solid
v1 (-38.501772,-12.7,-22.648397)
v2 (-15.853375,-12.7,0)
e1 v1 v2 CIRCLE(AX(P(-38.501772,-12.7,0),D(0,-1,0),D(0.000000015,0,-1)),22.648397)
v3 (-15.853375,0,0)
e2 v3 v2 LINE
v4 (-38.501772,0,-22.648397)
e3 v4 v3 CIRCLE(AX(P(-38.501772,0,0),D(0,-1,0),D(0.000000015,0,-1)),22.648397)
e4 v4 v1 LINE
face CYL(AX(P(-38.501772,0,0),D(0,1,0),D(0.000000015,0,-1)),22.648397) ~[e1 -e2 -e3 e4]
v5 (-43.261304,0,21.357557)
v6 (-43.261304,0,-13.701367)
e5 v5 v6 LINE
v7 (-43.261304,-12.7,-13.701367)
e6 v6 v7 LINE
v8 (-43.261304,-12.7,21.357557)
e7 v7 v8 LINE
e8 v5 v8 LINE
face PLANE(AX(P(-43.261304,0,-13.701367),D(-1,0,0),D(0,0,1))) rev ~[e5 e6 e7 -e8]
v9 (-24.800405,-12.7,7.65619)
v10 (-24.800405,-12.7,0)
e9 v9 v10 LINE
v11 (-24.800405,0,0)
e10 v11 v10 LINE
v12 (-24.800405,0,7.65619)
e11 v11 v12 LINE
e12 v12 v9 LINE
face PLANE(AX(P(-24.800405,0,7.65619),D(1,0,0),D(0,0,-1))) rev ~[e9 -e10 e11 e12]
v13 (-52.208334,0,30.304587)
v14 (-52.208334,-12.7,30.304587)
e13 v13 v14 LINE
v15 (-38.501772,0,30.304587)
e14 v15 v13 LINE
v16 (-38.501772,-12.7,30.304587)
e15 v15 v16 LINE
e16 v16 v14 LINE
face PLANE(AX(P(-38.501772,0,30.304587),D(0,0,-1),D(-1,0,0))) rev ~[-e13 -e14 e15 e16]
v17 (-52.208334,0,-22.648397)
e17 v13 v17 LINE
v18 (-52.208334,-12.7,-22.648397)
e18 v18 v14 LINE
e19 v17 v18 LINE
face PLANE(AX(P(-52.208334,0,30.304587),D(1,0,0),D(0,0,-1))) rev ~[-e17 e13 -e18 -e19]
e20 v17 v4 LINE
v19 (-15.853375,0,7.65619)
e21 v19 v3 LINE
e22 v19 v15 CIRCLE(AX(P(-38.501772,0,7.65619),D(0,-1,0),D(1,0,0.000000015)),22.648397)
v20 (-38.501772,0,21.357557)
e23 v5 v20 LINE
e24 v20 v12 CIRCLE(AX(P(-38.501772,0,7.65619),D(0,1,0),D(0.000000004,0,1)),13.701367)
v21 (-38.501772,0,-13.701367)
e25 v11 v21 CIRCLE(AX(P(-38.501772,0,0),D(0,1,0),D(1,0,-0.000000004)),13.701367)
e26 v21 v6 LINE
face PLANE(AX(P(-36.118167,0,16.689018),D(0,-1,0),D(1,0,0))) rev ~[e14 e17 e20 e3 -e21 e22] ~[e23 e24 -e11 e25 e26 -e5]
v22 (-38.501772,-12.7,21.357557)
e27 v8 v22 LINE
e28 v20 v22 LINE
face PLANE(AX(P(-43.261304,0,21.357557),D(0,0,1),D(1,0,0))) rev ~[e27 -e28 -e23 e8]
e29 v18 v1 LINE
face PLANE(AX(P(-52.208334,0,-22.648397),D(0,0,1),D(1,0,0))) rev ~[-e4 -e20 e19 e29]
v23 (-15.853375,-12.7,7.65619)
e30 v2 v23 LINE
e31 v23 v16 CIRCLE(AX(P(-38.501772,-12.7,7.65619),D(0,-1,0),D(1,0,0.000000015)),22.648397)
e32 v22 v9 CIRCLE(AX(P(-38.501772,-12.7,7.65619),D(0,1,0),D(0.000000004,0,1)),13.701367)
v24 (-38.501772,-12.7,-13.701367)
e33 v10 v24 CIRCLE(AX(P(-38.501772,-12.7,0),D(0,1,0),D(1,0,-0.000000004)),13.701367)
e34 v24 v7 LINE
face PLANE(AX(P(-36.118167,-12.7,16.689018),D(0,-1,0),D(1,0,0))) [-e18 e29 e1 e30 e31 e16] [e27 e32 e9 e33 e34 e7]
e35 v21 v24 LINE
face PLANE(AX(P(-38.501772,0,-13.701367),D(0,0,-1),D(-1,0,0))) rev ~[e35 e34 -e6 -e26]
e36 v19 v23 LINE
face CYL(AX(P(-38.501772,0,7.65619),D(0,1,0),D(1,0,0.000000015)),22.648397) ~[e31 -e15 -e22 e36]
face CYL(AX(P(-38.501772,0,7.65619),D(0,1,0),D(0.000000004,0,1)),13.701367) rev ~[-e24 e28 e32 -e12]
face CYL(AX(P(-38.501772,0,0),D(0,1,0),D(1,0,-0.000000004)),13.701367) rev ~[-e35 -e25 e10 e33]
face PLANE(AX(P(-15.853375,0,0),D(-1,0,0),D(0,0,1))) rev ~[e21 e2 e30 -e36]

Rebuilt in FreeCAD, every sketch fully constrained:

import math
import FreeCAD as App
import Part
import Sketcher
Q = App.Units.Quantity

doc = App.newDocument("Part")
body = doc.addObject("PartDesign::Body", "Body")

# Sketch on XZ plane
sketch1 = doc.addObject("Sketcher::SketchObject", "Sketch")
body.addObject(sketch1)
sketch1.AttachmentSupport = (doc.XZ_Plane, [""])
sketch1.MapMode = "FlatFace"
sketch1.addGeometry([
    Part.LineSegment(App.Vector(-43.3, 3.8, 0), App.Vector(-52.2, 3.8, 0)),  # 0
    Part.LineSegment(App.Vector(-52.2, 3.8, 0), App.Vector(-52.2, -22.6, 0)),  # 1
    Part.LineSegment(App.Vector(-52.2, -22.6, 0), App.Vector(-38.5, -22.6, 0)),  # 2
    Part.ArcOfCircle(Part.Circle(App.Vector(-38.5, 0, 0), App.Vector(0, 0, 1), 22.6), math.radians(-90), math.radians(0)),  # 3
    Part.LineSegment(App.Vector(-15.9, 0, 0), App.Vector(-15.9, 3.8, 0)),  # 4
    Part.LineSegment(App.Vector(-15.9, 3.8, 0), App.Vector(-24.8, 3.8, 0)),  # 5
    Part.LineSegment(App.Vector(-24.8, 3.8, 0), App.Vector(-24.8, 0, 0)),  # 6
    Part.ArcOfCircle(Part.Circle(App.Vector(-38.5, 0, 0), App.Vector(0, 0, 1), 13.7), math.radians(-90), math.radians(0)),  # 7
    Part.LineSegment(App.Vector(-38.5, -13.7, 0), App.Vector(-43.3, -13.7, 0)),  # 8
    Part.LineSegment(App.Vector(-43.3, -13.7, 0), App.Vector(-43.3, 3.8, 0)),  # 9
], False)
sketch1.addConstraint([
    Sketcher.Constraint("Coincident", 0, 2, 1, 1),
    Sketcher.Constraint("Coincident", 1, 2, 2, 1),
    Sketcher.Constraint("Tangent", 2, 2, 3, 1),
    Sketcher.Constraint("Tangent", 3, 2, 4, 1),
    Sketcher.Constraint("Coincident", 4, 2, 5, 1),
    Sketcher.Constraint("Coincident", 5, 2, 6, 1),
    Sketcher.Constraint("Tangent", 6, 2, 7, 2),
    Sketcher.Constraint("Tangent", 7, 1, 8, 1),
    Sketcher.Constraint("Coincident", 8, 2, 9, 1),
    Sketcher.Constraint("Coincident", 9, 2, 0, 1),
    Sketcher.Constraint("Horizontal", 0),
    Sketcher.Constraint("Vertical", 1),
    Sketcher.Constraint("Horizontal", 2),
    Sketcher.Constraint("Vertical", 4),
    Sketcher.Constraint("Horizontal", 5),
    Sketcher.Constraint("Vertical", 6),
    Sketcher.Constraint("Horizontal", 8),
    Sketcher.Constraint("Vertical", 9),
    Sketcher.Constraint("Coincident", 7, 3, 3, 3),
    Sketcher.Constraint("PointOnObject", 3, 3, -1),
    Sketcher.Constraint("Horizontal", 0, 2, 4, 2),
    Sketcher.Constraint("Equal", 0, 5),
    Sketcher.Constraint("Radius", 3, Q("22.648397 mm")),
    Sketcher.Constraint("Radius", 7, Q("13.701367 mm")),
    Sketcher.Constraint("DistanceX", 2, 1, 2, 2, Q("13.706562 mm")),
    Sketcher.Constraint("DistanceY", 9, 1, 9, 2, Q("17.529462 mm")),
    Sketcher.Constraint("DistanceX", 3, 3, -1, 1, Q("38.501772 mm")),
])
pad1 = doc.addObject("PartDesign::Pad", "Pad")
body.addObject(pad1)
pad1.Profile = sketch1
pad1.Length = Q("0.5 in")

# Sketch on XZ plane
sketch2 = doc.addObject("Sketcher::SketchObject", "Sketch001")
body.addObject(sketch2)
sketch2.AttachmentSupport = (doc.XZ_Plane, [""])
sketch2.MapMode = "FlatFace"
sketch2.addGeometry([
    Part.LineSegment(App.Vector(-38.5, 30.3, 0), App.Vector(-52.2, 30.3, 0)),  # 0
    Part.LineSegment(App.Vector(-52.2, 30.3, 0), App.Vector(-52.2, -22.6, 0)),  # 1
    Part.LineSegment(App.Vector(-52.2, -22.6, 0), App.Vector(-38.5, -22.6, 0)),  # 2
    Part.ArcOfCircle(Part.Circle(App.Vector(-38.5, 0, 0), App.Vector(0, 0, 1), 22.6), math.radians(-90), math.radians(0)),  # 3
    Part.LineSegment(App.Vector(-15.9, 0, 0), App.Vector(-15.9, 7.7, 0)),  # 4
    Part.ArcOfCircle(Part.Circle(App.Vector(-38.5, 7.7, 0), App.Vector(0, 0, 1), 22.6), math.radians(0), math.radians(90)),  # 5
    Part.LineSegment(App.Vector(-43.3, 21.4, 0), App.Vector(-38.5, 21.4, 0)),  # 6
    Part.ArcOfCircle(Part.Circle(App.Vector(-38.5, 7.7, 0), App.Vector(0, 0, 1), 13.7), math.radians(0), math.radians(90)),  # 7
    Part.LineSegment(App.Vector(-24.8, 7.7, 0), App.Vector(-24.8, 0, 0)),  # 8
    Part.ArcOfCircle(Part.Circle(App.Vector(-38.5, 0, 0), App.Vector(0, 0, 1), 13.7), math.radians(-90), math.radians(0)),  # 9
    Part.LineSegment(App.Vector(-38.5, -13.7, 0), App.Vector(-43.3, -13.7, 0)),  # 10
    Part.LineSegment(App.Vector(-43.3, -13.7, 0), App.Vector(-43.3, 21.4, 0)),  # 11
], False)
sketch2.addConstraint([
    Sketcher.Constraint("Coincident", 0, 2, 1, 1),
    Sketcher.Constraint("Coincident", 1, 2, 2, 1),
    Sketcher.Constraint("Tangent", 2, 2, 3, 1),
    Sketcher.Constraint("Tangent", 3, 2, 4, 1),
    Sketcher.Constraint("Tangent", 4, 2, 5, 1),
    Sketcher.Constraint("Tangent", 5, 2, 0, 1),
    Sketcher.Constraint("Tangent", 6, 2, 7, 2),
    Sketcher.Constraint("Tangent", 7, 1, 8, 1),
    Sketcher.Constraint("Tangent", 8, 2, 9, 2),
    Sketcher.Constraint("Tangent", 9, 1, 10, 1),
    Sketcher.Constraint("Coincident", 10, 2, 11, 1),
    Sketcher.Constraint("Coincident", 11, 2, 6, 1),
    Sketcher.Constraint("Horizontal", 0),
    Sketcher.Constraint("Vertical", 1),
    Sketcher.Constraint("Horizontal", 2),
    Sketcher.Constraint("Vertical", 4),
    Sketcher.Constraint("Horizontal", 6),
    Sketcher.Constraint("Vertical", 8),
    Sketcher.Constraint("Horizontal", 10),
    Sketcher.Constraint("Vertical", 11),
    Sketcher.Constraint("Coincident", 7, 3, 5, 3),
    Sketcher.Constraint("Coincident", 9, 3, 3, 3),
    Sketcher.Constraint("Equal", 3, 5),
    Sketcher.Constraint("PointOnObject", 3, 3, -1),
    Sketcher.Constraint("Radius", 3, Q("22.648397 mm")),
    Sketcher.Constraint("Radius", 7, Q("13.701367 mm")),
    Sketcher.Constraint("DistanceX", 0, 2, 0, 1, Q("13.706562 mm")),
    Sketcher.Constraint("DistanceY", 4, 1, 4, 2, Q("7.65619 mm")),
    Sketcher.Constraint("DistanceX", 6, 1, 6, 2, Q("4.759532 mm")),
    Sketcher.Constraint("DistanceX", 3, 3, -1, 1, Q("38.501772 mm")),
])
pad2 = doc.addObject("PartDesign::Pad", "Pad001")
body.addObject(pad2)
pad2.Profile = sketch2
pad2.Length = Q("0.5 in")

doc.recompute()
